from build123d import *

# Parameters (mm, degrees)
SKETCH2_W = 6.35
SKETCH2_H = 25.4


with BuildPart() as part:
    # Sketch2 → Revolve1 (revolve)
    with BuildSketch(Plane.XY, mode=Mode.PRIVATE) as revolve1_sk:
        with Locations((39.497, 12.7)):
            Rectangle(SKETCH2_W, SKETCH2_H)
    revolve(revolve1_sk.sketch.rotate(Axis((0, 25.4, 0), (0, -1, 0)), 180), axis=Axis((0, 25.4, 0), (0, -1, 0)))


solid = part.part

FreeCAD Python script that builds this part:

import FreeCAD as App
import Part
import Sketcher

V = App.Vector
Q = App.Units.Quantity

doc = App.newDocument("Part")
body = doc.addObject("PartDesign::Body", "Body")

sketch1 = body.newObject("Sketcher::SketchObject", "Sketch")
sketch1.AttachmentSupport = (doc.getObject("XY_Plane"), [""])
sketch1.MapMode = "FlatFace"
sketch1.addGeometry([
    Part.LineSegment(V(36.322, 25.4, 0), V(36.322, 0, 0)),
    Part.LineSegment(V(36.322, 0, 0), V(42.672, 0, 0)),
    Part.LineSegment(V(42.672, 0, 0), V(42.672, 25.4, 0)),
    Part.LineSegment(V(42.672, 25.4, 0), V(36.322, 25.4, 0)),
], False)
sketch1.addConstraint([
    Sketcher.Constraint("Coincident", 0, 2, 1, 1),
    Sketcher.Constraint("Coincident", 1, 2, 2, 1),
    Sketcher.Constraint("Coincident", 2, 2, 3, 1),
    Sketcher.Constraint("Coincident", 3, 2, 0, 1),
    Sketcher.Constraint("Vertical", 0),
    Sketcher.Constraint("Horizontal", 1),
    Sketcher.Constraint("Vertical", 2),
    Sketcher.Constraint("Horizontal", 3),
    Sketcher.Constraint("PointOnObject", 0, 2, -1),
    Sketcher.Constraint("DistanceY", 0, 2, 0, 1, Q("1 in")),
    Sketcher.Constraint("DistanceX", 1, 1, 1, 2, Q("0.25 in")),
    Sketcher.Constraint("DistanceX", -1, 1, 0, 2, Q("1.43 in")),
])
revolution = body.newObject("PartDesign::Revolution", "Revolution")
revolution.Profile = sketch1
revolution.ReferenceAxis = (sketch1, ["V_Axis"])
revolution.Angle = 360

doc.recompute()
